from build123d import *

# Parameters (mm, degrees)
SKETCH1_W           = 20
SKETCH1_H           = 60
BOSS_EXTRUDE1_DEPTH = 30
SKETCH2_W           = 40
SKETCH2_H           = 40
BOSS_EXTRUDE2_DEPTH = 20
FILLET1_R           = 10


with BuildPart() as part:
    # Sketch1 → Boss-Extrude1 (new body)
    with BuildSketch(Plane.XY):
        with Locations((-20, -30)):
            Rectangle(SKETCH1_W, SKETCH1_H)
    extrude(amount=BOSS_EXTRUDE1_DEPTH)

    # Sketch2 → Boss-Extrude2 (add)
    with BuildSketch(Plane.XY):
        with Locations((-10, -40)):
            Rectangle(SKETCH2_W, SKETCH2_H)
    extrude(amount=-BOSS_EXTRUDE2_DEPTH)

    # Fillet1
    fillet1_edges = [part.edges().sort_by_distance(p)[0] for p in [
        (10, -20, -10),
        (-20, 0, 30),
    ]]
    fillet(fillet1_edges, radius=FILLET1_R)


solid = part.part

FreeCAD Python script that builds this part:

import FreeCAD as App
import Part
import Sketcher
from FreeCAD import Vector
Q = App.Units.Quantity


def edges_at(feature, points):
    """Names of the edges that pass closest to the given points."""
    edges = feature.Shape.Edges
    near = lambda p: min(range(len(edges)), key=lambda i: edges[i].distToShape(Part.Vertex(*p))[0])
    return sorted({f"Edge{near(p) + 1}" for p in points})

doc = App.newDocument("Part")
body = doc.addObject("PartDesign::Body", "Body")

# Sketch on XY plane
sketch1 = doc.addObject("Sketcher::SketchObject", "Sketch")
body.addObject(sketch1)
sketch1.AttachmentSupport = (doc.XY_Plane, [""])
sketch1.MapMode = "FlatFace"
sketch1.addGeometry([
    Part.LineSegment(Vector(-30, 0, 0), Vector(-30, -60, 0)),
    Part.LineSegment(Vector(-30, -60, 0), Vector(-10, -60, 0)),
    Part.LineSegment(Vector(-10, -60, 0), Vector(-10, 0, 0)),
    Part.LineSegment(Vector(-10, 0, 0), Vector(-30, 0, 0)),
], False)
sketch1.addConstraint([
    Sketcher.Constraint("Coincident", 0, 2, 1, 1),
    Sketcher.Constraint("Coincident", 1, 2, 2, 1),
    Sketcher.Constraint("Coincident", 2, 2, 3, 1),
    Sketcher.Constraint("Coincident", 3, 2, 0, 1),
    Sketcher.Constraint("Vertical", 0),
    Sketcher.Constraint("Horizontal", 1),
    Sketcher.Constraint("Vertical", 2),
    Sketcher.Constraint("Horizontal", 3),
    Sketcher.Constraint("PointOnObject", 2, 2, -1),
    Sketcher.Constraint("DistanceX", 1, 1, 1, 2, Q("20 mm")),
    Sketcher.Constraint("DistanceY", 0, 2, 0, 1, Q("60 mm")),
    Sketcher.Constraint("DistanceX", 0, 2, -1, 1, Q("30 mm")),
])
pad1 = doc.addObject("PartDesign::Pad", "Pad")
body.addObject(pad1)
pad1.Profile = sketch1
pad1.Length = 30

# Sketch on XY plane
sketch2 = doc.addObject("Sketcher::SketchObject", "Sketch001")
body.addObject(sketch2)
sketch2.AttachmentSupport = (doc.XY_Plane, [""])
sketch2.MapMode = "FlatFace"
sketch2.addGeometry([
    Part.LineSegment(Vector(-30, -20, 0), Vector(-30, -60, 0)),
    Part.LineSegment(Vector(-30, -60, 0), Vector(10, -60, 0)),
    Part.LineSegment(Vector(10, -60, 0), Vector(10, -20, 0)),
    Part.LineSegment(Vector(10, -20, 0), Vector(-30, -20, 0)),
], False)
sketch2.addConstraint([
    Sketcher.Constraint("Coincident", 0, 2, 1, 1),
    Sketcher.Constraint("Coincident", 1, 2, 2, 1),
    Sketcher.Constraint("Coincident", 2, 2, 3, 1),
    Sketcher.Constraint("Coincident", 3, 2, 0, 1),
    Sketcher.Constraint("Vertical", 0),
    Sketcher.Constraint("Horizontal", 1),
    Sketcher.Constraint("Vertical", 2),
    Sketcher.Constraint("Horizontal", 3),
    Sketcher.Constraint("Equal", 3, 0),
    Sketcher.Constraint("DistanceX", 1, 1, 1, 2, Q("40 mm")),
    Sketcher.Constraint("DistanceX", 0, 2, -1, 1, Q("30 mm")),
    Sketcher.Constraint("DistanceY", 0, 2, -1, 1, Q("60 mm")),
])
pad2 = doc.addObject("PartDesign::Pad", "Pad001")
body.addObject(pad2)
pad2.Profile = sketch2
pad2.Length = 20
pad2.Reversed = True
doc.recompute()

fillet = doc.addObject("PartDesign::Fillet", "Fillet")
body.addObject(fillet)
fillet.Base = (pad2, edges_at(pad2, [(10, -20, -10), (-20, 0, 30)]))
fillet.Radius = 10

doc.recompute()
